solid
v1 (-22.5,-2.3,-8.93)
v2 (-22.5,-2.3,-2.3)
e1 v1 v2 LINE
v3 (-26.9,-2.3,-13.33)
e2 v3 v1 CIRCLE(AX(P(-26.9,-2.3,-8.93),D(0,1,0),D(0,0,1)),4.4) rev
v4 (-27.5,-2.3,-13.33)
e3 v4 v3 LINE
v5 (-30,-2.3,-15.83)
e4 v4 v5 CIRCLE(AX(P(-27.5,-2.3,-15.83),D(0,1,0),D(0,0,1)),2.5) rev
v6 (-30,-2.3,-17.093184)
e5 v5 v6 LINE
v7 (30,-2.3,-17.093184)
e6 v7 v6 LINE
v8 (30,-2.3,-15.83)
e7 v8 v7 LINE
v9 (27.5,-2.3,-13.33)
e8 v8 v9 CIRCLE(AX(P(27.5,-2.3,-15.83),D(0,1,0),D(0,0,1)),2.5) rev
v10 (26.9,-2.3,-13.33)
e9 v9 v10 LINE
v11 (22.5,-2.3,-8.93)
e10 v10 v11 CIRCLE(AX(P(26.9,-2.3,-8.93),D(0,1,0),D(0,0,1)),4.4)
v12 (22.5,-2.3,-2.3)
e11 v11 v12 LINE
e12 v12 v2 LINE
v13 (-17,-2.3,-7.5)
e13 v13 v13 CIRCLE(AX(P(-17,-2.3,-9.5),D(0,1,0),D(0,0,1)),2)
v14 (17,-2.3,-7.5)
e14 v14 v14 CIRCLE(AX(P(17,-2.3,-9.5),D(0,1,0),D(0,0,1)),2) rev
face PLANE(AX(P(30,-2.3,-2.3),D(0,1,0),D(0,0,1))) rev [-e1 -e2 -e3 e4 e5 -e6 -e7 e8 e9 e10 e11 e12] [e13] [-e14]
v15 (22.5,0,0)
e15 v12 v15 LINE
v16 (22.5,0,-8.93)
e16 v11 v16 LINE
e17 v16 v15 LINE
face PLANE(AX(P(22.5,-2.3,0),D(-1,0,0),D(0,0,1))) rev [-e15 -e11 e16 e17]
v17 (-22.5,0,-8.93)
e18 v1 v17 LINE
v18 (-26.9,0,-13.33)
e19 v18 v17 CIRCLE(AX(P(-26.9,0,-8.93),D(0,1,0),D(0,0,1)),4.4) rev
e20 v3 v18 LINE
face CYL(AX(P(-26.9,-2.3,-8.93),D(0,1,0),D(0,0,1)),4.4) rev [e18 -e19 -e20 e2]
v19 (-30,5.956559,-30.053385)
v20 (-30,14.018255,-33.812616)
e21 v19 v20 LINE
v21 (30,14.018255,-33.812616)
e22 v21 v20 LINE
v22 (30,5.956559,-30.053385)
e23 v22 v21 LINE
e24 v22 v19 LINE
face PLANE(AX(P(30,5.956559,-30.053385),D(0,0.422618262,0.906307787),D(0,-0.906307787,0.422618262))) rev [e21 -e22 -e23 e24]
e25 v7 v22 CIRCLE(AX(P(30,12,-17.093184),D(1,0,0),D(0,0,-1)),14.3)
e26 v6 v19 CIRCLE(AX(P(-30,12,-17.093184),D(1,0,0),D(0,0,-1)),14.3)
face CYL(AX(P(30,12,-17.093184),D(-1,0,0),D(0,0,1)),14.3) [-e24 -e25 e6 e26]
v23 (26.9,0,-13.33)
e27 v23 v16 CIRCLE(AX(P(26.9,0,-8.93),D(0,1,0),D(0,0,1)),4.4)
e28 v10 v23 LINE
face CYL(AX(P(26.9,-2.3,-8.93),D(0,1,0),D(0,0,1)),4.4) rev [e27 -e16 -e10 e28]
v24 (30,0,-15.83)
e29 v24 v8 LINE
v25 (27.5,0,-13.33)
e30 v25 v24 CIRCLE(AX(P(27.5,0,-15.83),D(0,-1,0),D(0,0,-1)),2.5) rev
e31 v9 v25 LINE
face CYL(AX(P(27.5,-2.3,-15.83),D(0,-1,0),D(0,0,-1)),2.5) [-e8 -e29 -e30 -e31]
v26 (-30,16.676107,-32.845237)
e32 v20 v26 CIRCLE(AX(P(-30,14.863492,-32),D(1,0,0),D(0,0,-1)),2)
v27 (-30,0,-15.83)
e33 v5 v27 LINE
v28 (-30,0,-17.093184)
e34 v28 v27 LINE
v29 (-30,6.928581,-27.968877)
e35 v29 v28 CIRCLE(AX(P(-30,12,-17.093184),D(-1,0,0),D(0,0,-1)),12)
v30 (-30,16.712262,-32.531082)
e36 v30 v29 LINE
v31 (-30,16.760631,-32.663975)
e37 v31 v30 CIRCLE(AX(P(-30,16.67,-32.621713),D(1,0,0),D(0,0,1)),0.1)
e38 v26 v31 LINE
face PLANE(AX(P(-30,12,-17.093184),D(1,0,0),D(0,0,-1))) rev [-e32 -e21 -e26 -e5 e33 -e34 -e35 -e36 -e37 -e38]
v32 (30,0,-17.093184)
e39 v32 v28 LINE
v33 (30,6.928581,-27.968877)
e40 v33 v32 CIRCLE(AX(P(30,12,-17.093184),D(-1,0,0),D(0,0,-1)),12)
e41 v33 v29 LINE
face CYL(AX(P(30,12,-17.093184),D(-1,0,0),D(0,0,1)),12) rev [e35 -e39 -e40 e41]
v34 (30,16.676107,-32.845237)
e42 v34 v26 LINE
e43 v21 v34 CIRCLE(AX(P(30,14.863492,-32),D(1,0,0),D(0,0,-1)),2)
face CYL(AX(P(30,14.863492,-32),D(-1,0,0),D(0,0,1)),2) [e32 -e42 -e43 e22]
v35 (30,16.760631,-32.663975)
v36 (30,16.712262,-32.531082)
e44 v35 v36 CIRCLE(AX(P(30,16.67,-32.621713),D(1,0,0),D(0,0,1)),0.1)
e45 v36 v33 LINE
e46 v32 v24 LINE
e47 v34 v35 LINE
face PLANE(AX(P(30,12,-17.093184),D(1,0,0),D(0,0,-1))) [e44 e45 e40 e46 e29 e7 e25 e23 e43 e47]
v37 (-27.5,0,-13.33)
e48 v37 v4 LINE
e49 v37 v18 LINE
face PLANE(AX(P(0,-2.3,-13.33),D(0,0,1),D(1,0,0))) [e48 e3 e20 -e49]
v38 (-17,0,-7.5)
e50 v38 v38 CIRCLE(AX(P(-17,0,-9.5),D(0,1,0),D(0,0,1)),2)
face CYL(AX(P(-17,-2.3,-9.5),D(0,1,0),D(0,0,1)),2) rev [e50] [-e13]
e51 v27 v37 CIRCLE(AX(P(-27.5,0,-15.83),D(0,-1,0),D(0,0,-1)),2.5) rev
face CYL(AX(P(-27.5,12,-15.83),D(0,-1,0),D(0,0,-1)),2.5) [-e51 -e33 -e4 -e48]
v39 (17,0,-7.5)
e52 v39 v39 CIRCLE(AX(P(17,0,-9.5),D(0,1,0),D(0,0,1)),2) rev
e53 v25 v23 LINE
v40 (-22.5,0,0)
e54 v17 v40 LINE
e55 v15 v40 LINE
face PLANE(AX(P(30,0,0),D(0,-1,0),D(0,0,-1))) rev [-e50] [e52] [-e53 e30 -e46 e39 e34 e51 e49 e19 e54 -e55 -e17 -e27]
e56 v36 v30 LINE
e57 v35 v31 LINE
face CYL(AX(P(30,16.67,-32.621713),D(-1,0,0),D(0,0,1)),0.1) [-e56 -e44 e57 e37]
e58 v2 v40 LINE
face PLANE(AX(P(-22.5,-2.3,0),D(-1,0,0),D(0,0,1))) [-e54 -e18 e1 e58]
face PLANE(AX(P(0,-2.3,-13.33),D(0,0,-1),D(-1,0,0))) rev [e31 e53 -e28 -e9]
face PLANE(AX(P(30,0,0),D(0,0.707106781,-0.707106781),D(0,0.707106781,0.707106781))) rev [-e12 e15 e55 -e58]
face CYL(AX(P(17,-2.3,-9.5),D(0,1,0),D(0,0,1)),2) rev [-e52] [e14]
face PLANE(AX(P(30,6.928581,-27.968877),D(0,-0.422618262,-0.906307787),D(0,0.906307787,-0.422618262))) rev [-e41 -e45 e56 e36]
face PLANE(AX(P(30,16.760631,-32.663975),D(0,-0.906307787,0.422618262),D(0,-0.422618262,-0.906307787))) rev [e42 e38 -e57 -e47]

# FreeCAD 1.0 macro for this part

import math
import FreeCAD as App
import Part
import Sketcher

V = App.Vector
Q = App.Units.Quantity


def edges_at(feature, points):
    """Names of the edges that pass closest to the given points."""
    edges = feature.Shape.Edges
    near = lambda p: min(range(len(edges)), key=lambda i: edges[i].distToShape(Part.Vertex(*p))[0])
    return sorted({f"Edge{near(p) + 1}" for p in points})

doc = App.newDocument("Part")
body = doc.addObject("PartDesign::Body", "Body")

# Sketch on YZ plane
sketch1 = body.newObject("Sketcher::SketchObject", "Sketch")
sketch1.AttachmentSupport = (doc.getObject("YZ_Plane"), [""])
sketch1.MapMode = "FlatFace"
sketch1.addGeometry([
    Part.LineSegment(V(0, -17.09, 0), V(0, 0, 0)),  # 0
    Part.LineSegment(V(0, 0, 0), V(-2.3, -2.3, 0)),  # 1
    Part.LineSegment(V(-2.3, -2.3, 0), V(-2.3, -17.09, 0)),  # 2
    Part.ArcOfCircle(Part.Circle(V(12, -17.09, 0), V(0, 0, 1), 14.3), math.radians(-180), math.radians(-115)),  # 3
    Part.LineSegment(V(5.96, -30.05, 0), V(14.02, -33.81, 0)),  # 4
    Part.ArcOfCircle(Part.Circle(V(14.86, -32, 0), V(0, 0, 1), 2), math.radians(-115), math.radians(-25)),  # 5
    Part.LineSegment(V(16.68, -32.85, 0), V(16.76, -32.66, 0)),  # 6
    Part.ArcOfCircle(Part.Circle(V(16.67, -32.62, 0), V(0, 0, 1), 0.1), math.radians(-25), math.radians(65)),  # 7
    Part.LineSegment(V(16.71, -32.53, 0), V(6.93, -27.97, 0)),  # 8
    Part.ArcOfCircle(Part.Circle(V(12, -17.09, 0), V(0, 0, 1), 12), math.radians(180), math.radians(245)),  # 9
], False)
sketch1.addConstraint([
    Sketcher.Constraint("Coincident", 0, 2, 1, 1),
    Sketcher.Constraint("Coincident", 1, 2, 2, 1),
    Sketcher.Constraint("Tangent", 2, 2, 3, 1),
    Sketcher.Constraint("Tangent", 3, 2, 4, 1),
    Sketcher.Constraint("Tangent", 4, 2, 5, 1),
    Sketcher.Constraint("Tangent", 5, 2, 6, 1),
    Sketcher.Constraint("Tangent", 6, 2, 7, 1),
    Sketcher.Constraint("Tangent", 7, 2, 8, 1),
    Sketcher.Constraint("Tangent", 8, 2, 9, 2),
    Sketcher.Constraint("Tangent", 9, 1, 0, 1),
    Sketcher.Constraint("Vertical", 0),
    Sketcher.Constraint("Vertical", 2),
    Sketcher.Constraint("Coincident", 0, 2, -1, 1),
    Sketcher.Constraint("Coincident", 9, 3, 3, 3),
    Sketcher.Constraint("Perpendicular", 4, 6),
    Sketcher.Constraint("Perpendicular", 6, 8),
    Sketcher.Constraint("Radius", 5, Q("2 mm")),
    Sketcher.Constraint("Radius", 9, Q("12 mm")),
    Sketcher.Constraint("Radius", 3, Q("14.3 mm")),
    Sketcher.Constraint("Radius", 7, Q("0.1 mm")),
    Sketcher.Constraint("Angle", 1, Q("-135 deg")),
    Sketcher.Constraint("Angle", 4, Q("-25 deg")),
    Sketcher.Constraint("DistanceY", 5, 3, -1, 1, Q("32 mm")),
    Sketcher.Constraint("DistanceX", -1, 1, 7, 3, Q("16.67 mm")),
])
pad1 = body.newObject("PartDesign::Pad", "Pad")
pad1.Profile = sketch1
pad1.Length = 60
pad1.Midplane = True

# Sketch on XZ plane
sketch2 = body.newObject("Sketcher::SketchObject", "Sketch001")
sketch2.AttachmentSupport = (doc.getObject("XZ_Plane"), [""])
sketch2.MapMode = "FlatFace"
sketch2.addGeometry([
    Part.LineSegment(V(-26.9, -13.3, 0), V(-30, -13.3, 0)),  # 0
    Part.LineSegment(V(-30, -13.3, 0), V(-30, 0, 0)),  # 1
    Part.LineSegment(V(-30, 0, 0), V(-22.5, 0, 0)),  # 2
    Part.LineSegment(V(-22.5, 0, 0), V(-22.5, -8.9, 0)),  # 3
    Part.ArcOfCircle(Part.Circle(V(-26.9, -8.9, 0), V(0, 0, 1), 4.4), math.radians(-90), math.radians(0)),  # 4
    Part.Circle(V(-17, -9.5, 0), V(0, 0, 1), 2),  # 5
    Part.Circle(V(17, -9.5, 0), V(0, 0, 1), 2),  # 6
    Part.LineSegment(V(30, 0, 0), V(30, -13.3, 0)),  # 7
    Part.LineSegment(V(30, -13.3, 0), V(26.9, -13.3, 0)),  # 8
    Part.ArcOfCircle(Part.Circle(V(26.9, -8.9, 0), V(0, 0, 1), 4.4), math.radians(-180), math.radians(-90)),  # 9
    Part.LineSegment(V(22.5, -8.9, 0), V(22.5, 0, 0)),  # 10
    Part.LineSegment(V(22.5, 0, 0), V(30, 0, 0)),  # 11
], False)
sketch2.addConstraint([
    Sketcher.Constraint("Coincident", 0, 2, 1, 1),
    Sketcher.Constraint("Coincident", 1, 2, 2, 1),
    Sketcher.Constraint("Coincident", 2, 2, 3, 1),
    Sketcher.Constraint("Tangent", 3, 2, 4, 2),
    Sketcher.Constraint("Tangent", 4, 1, 0, 1),
    Sketcher.Constraint("Coincident", 7, 2, 8, 1),
    Sketcher.Constraint("Tangent", 8, 2, 9, 2),
    Sketcher.Constraint("Tangent", 9, 1, 10, 1),
    Sketcher.Constraint("Coincident", 10, 2, 11, 1),
    Sketcher.Constraint("Coincident", 11, 2, 7, 1),
    Sketcher.Constraint("Horizontal", 0),
    Sketcher.Constraint("Vertical", 1),
    Sketcher.Constraint("Horizontal", 2),
    Sketcher.Constraint("Vertical", 3),
    Sketcher.Constraint("Vertical", 7),
    Sketcher.Constraint("Horizontal", 8),
    Sketcher.Constraint("Vertical", 10),
    Sketcher.Constraint("Horizontal", 11),
    Sketcher.Constraint("Equal", 5, 6),
    Sketcher.Constraint("Equal", 4, 9),
    Sketcher.Constraint("Symmetric", 2, 2, 10, 2, -1, 1),
    Sketcher.Constraint("Symmetric", 5, 3, 6, 3, -2),
    Sketcher.Constraint("Symmetric", 0, 2, 7, 2, -2),
    Sketcher.Constraint("PointOnObject", 1, 2, -1),
    Sketcher.Constraint("Diameter", 5, Q("4 mm")),
    Sketcher.Constraint("Radius", 4, Q("4.4 mm")),
    Sketcher.Constraint("DistanceX", 0, 2, 0, 1, Q("3.1 mm")),
    Sketcher.Constraint("DistanceX", 5, 3, -1, 1, Q("17 mm")),
    Sketcher.Constraint("DistanceX", 0, 2, -1, 1, Q("30 mm")),
    Sketcher.Constraint("DistanceY", 1, 1, 1, 2, Q("13.33 mm")),
    Sketcher.Constraint("DistanceY", 5, 3, -1, 1, Q("9.5 mm")),
])
pocket1 = body.newObject("PartDesign::Pocket", "Pocket")
pocket1.Profile = sketch2
pocket1.Type = "ThroughAll"
pocket1.Reversed = True
doc.recompute()

fillet = body.newObject("PartDesign::Fillet", "Fillet")
fillet.Base = (pocket1, edges_at(pocket1, [(-30, -1.15, -13.33), (30, -1.15, -13.33)]))
fillet.Radius = 2.5

doc.recompute()
